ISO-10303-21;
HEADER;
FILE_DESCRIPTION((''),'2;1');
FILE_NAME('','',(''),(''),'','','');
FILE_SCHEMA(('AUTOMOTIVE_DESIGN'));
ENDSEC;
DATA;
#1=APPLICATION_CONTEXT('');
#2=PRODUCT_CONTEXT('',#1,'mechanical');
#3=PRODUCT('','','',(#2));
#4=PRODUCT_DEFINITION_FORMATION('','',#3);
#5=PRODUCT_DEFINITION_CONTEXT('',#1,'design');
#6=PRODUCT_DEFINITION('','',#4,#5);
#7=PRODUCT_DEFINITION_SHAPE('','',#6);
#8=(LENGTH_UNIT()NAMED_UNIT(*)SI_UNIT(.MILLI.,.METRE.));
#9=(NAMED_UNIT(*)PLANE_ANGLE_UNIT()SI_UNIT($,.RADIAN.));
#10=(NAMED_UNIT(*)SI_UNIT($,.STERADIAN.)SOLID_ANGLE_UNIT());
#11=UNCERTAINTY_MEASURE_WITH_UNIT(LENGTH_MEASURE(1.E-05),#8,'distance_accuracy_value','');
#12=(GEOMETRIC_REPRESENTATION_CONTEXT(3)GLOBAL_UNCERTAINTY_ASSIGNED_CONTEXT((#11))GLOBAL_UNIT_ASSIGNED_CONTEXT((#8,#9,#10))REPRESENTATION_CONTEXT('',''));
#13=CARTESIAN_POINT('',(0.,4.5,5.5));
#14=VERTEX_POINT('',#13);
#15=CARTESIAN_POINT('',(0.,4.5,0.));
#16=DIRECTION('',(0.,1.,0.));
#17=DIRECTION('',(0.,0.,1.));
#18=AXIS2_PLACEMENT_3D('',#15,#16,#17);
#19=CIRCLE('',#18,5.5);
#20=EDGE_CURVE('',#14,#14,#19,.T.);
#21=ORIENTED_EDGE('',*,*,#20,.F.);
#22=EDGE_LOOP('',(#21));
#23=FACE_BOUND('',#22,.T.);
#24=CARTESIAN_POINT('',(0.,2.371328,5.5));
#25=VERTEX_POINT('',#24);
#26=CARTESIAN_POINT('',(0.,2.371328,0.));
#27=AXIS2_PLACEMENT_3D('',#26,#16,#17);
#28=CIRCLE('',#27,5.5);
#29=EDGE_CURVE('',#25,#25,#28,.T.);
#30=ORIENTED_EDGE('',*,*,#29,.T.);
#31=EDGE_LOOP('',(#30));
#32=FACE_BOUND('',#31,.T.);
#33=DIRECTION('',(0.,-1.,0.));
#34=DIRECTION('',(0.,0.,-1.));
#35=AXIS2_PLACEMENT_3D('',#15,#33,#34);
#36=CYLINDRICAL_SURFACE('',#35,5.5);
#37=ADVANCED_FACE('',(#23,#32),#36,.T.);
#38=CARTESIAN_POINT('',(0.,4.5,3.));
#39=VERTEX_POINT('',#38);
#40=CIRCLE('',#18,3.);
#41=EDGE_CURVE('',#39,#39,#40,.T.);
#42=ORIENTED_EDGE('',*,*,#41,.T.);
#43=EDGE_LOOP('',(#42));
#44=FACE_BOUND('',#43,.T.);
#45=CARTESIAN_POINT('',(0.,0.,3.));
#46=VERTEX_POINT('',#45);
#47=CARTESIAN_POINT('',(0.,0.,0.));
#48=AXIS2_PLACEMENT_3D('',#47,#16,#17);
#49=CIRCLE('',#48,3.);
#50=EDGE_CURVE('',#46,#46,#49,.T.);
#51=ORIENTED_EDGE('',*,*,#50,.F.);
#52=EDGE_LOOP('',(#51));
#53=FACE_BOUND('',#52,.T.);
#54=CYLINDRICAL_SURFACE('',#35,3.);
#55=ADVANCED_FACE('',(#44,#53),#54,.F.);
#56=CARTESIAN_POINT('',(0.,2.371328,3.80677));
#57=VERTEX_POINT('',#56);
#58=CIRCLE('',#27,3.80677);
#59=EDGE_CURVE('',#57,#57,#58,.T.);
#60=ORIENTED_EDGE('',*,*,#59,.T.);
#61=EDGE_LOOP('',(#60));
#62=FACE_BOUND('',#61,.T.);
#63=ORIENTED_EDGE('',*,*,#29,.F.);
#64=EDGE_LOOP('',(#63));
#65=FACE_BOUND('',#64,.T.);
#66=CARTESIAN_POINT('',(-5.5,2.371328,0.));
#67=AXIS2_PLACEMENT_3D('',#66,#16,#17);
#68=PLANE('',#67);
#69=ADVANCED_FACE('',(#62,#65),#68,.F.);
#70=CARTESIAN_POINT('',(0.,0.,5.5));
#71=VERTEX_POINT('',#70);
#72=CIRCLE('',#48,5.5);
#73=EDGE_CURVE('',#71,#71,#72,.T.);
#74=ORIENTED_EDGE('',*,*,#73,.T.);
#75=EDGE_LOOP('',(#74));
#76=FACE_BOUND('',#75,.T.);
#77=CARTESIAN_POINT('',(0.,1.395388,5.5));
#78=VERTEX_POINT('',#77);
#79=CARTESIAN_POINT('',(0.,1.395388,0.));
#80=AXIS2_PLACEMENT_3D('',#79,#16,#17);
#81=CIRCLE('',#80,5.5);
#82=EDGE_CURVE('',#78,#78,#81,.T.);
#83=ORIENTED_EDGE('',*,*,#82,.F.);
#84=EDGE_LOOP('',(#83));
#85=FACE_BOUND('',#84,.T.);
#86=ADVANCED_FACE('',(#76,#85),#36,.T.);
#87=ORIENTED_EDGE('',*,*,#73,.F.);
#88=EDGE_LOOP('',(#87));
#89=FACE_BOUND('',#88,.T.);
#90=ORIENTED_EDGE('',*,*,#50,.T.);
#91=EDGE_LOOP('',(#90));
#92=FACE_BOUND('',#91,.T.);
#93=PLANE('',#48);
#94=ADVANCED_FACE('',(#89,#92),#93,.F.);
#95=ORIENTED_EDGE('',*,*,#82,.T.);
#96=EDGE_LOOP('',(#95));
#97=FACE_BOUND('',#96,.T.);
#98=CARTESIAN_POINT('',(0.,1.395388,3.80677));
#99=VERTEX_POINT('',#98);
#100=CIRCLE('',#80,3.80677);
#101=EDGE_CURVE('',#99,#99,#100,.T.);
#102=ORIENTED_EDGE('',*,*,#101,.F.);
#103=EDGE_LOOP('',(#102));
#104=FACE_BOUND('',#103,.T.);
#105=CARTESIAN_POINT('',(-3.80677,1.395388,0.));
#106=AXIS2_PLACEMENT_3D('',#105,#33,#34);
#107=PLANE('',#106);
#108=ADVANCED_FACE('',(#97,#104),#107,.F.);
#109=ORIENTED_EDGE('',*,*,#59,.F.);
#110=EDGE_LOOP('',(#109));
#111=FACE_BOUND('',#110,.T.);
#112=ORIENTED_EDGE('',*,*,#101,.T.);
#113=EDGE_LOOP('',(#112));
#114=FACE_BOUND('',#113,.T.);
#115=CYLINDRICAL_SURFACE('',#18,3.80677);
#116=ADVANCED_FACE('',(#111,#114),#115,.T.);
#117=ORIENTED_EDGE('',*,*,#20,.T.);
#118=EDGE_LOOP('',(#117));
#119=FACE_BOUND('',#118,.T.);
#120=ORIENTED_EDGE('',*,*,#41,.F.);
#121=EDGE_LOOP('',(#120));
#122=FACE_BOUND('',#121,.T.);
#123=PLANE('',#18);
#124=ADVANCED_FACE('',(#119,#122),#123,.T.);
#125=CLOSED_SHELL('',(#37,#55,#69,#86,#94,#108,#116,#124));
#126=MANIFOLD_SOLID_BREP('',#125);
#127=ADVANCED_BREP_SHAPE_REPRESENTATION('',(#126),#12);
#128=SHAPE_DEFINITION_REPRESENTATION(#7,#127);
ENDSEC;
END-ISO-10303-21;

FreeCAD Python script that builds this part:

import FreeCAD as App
import Part
import Sketcher

V = App.Vector

doc = App.newDocument("Part")
body = doc.addObject("PartDesign::Body", "Body")

# Sketch on XZ plane
sketch1 = body.newObject("Sketcher::SketchObject", "Sketch")
sketch1.AttachmentSupport = (doc.getObject("XZ_Plane"), [""])
sketch1.MapMode = "FlatFace"
sketch1.addGeometry(Part.Circle(V(0, 0, 0), V(0, 0, 1), 5.5), False)
sketch1.addGeometry(Part.Circle(V(0, 0, 0), V(0, 0, 1), 3), False)
sketch1.addConstraint(Sketcher.Constraint("Coincident", 0, 3, -1, 1))
sketch1.addConstraint(Sketcher.Constraint("Coincident", 1, 3, -1, 1))
sketch1.addConstraint(Sketcher.Constraint("Diameter", 0, 11.0))
sketch1.addConstraint(Sketcher.Constraint("Diameter", 1, 6.0))
pad1 = body.newObject("PartDesign::Pad", "Pad")
pad1.Profile = sketch1
pad1.Length = 4.5
pad1.Reversed = True

# Sketch on XY plane
sketch2 = body.newObject("Sketcher::SketchObject", "Sketch001")
sketch2.AttachmentSupport = (doc.getObject("XY_Plane"), [""])
sketch2.MapMode = "FlatFace"
sketch2.addGeometry(Part.LineSegment(V(-5.5, 2.4, 0), V(-5.5, 1.4, 0)), False)
sketch2.addGeometry(Part.LineSegment(V(-5.5, 1.4, 0), V(-3.8, 1.4, 0)), False)
sketch2.addGeometry(Part.LineSegment(V(-3.8, 1.4, 0), V(-3.8, 2.4, 0)), False)
sketch2.addGeometry(Part.LineSegment(V(-3.8, 2.4, 0), V(-5.5, 2.4, 0)), False)
sketch2.addConstraint(Sketcher.Constraint("Coincident", 0, 2, 1, 1))
sketch2.addConstraint(Sketcher.Constraint("Coincident", 1, 2, 2, 1))
sketch2.addConstraint(Sketcher.Constraint("Coincident", 2, 2, 3, 1))
sketch2.addConstraint(Sketcher.Constraint("Coincident", 3, 2, 0, 1))
sketch2.addConstraint(Sketcher.Constraint("Vertical", 0))
sketch2.addConstraint(Sketcher.Constraint("Horizontal", 1))
sketch2.addConstraint(Sketcher.Constraint("Vertical", 2))
sketch2.addConstraint(Sketcher.Constraint("Horizontal", 3))
sketch2.addConstraint(Sketcher.Constraint("DistanceX", 0, 2, -1, 1, 5.5))
sketch2.addConstraint(Sketcher.Constraint("DistanceX", 1, 1, 1, 2, 1.69323))
sketch2.addConstraint(Sketcher.Constraint("DistanceY", 0, 2, 0, 1, 0.97594))
sketch2.addConstraint(Sketcher.Constraint("DistanceY", -1, 1, 0, 2, 1.395388))
groove = body.newObject("PartDesign::Groove", "Groove")
groove.Profile = sketch2
groove.ReferenceAxis = (sketch2, ["V_Axis"])
groove.Angle = 360

doc.recompute()
